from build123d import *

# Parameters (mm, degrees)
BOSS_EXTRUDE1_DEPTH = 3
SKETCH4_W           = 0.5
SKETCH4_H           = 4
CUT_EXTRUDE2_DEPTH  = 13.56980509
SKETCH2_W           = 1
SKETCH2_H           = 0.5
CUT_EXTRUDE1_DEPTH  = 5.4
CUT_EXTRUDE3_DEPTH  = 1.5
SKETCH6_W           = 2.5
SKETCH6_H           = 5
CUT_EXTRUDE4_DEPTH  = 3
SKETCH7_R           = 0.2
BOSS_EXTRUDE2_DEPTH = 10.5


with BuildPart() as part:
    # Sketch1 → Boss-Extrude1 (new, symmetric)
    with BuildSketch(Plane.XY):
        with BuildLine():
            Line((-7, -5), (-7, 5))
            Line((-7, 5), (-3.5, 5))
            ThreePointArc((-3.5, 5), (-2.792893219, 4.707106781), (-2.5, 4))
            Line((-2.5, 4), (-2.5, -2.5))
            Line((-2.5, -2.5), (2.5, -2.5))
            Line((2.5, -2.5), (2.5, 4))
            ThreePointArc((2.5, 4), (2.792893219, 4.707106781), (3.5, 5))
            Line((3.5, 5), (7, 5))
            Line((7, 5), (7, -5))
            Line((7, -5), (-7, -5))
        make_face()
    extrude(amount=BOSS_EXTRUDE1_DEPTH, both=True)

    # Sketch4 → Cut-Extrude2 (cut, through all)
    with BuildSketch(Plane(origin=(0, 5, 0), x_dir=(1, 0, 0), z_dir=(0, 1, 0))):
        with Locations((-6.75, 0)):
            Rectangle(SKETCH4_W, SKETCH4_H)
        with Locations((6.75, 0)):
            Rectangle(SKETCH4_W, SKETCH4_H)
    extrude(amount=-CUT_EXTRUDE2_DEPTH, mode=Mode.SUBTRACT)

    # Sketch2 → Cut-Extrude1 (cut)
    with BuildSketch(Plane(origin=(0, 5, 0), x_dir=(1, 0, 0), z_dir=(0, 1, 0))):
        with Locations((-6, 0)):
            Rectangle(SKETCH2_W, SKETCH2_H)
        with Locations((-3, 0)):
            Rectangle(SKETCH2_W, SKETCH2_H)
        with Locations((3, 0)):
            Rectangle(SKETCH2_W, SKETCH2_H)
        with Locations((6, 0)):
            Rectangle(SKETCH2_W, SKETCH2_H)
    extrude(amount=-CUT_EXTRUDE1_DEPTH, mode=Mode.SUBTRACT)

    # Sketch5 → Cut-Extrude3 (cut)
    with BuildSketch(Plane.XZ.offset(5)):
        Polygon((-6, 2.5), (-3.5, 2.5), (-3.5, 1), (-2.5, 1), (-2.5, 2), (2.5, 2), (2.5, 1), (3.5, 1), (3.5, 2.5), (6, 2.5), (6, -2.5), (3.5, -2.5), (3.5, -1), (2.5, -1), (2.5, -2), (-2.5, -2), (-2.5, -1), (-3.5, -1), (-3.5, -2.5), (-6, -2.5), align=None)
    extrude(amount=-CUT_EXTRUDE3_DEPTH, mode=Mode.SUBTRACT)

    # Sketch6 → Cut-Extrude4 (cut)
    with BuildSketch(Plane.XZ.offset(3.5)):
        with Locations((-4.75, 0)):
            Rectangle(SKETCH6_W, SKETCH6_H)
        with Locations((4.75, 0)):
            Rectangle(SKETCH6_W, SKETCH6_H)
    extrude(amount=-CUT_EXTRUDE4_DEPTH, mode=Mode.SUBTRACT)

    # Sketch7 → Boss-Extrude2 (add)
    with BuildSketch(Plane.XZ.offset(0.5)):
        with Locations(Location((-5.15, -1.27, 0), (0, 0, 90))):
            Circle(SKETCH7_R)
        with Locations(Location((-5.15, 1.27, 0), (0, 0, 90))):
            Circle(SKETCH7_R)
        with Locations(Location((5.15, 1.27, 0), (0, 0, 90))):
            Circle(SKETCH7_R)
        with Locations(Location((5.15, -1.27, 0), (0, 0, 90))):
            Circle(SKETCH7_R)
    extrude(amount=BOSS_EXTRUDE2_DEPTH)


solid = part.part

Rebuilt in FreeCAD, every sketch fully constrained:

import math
import FreeCAD as App
import Part
import Sketcher
from FreeCAD import Vector
Q = App.Units.Quantity


def add_polygon(sketch, points):
    """Adds a closed chain of lines whose ends are joined by coincident constraints."""
    first, n = sketch.GeometryCount, len(points)
    for a, b in zip(points, points[1:] + points[:1]):
        sketch.addGeometry(Part.LineSegment(App.Vector(*a, 0), App.Vector(*b, 0)), False)
    for i in range(n):
        sketch.addConstraint(Sketcher.Constraint("Coincident", first + i, 2, first + (i + 1) % n, 1))

doc = App.newDocument("Part")
body = doc.addObject("PartDesign::Body", "Body")

# Sketch on XY plane
sketch1 = body.newObject("Sketcher::SketchObject", "Sketch")
sketch1.AttachmentSupport = (doc.getObject("XY_Plane"), [""])
sketch1.MapMode = "FlatFace"
sketch1.addGeometry([
    Part.LineSegment(Vector(-7, 5, 0), Vector(-7, -5, 0)),  # 0
    Part.LineSegment(Vector(-7, -5, 0), Vector(7, -5, 0)),  # 1
    Part.LineSegment(Vector(7, -5, 0), Vector(7, 5, 0)),  # 2
    Part.LineSegment(Vector(7, 5, 0), Vector(3.5, 5, 0)),  # 3
    Part.ArcOfCircle(Part.Circle(Vector(3.5, 4, 0), Vector(0, 0, 1), 1), math.radians(90), math.radians(180)),  # 4
    Part.LineSegment(Vector(2.5, 4, 0), Vector(2.5, -2.5, 0)),  # 5
    Part.LineSegment(Vector(2.5, -2.5, 0), Vector(-2.5, -2.5, 0)),  # 6
    Part.LineSegment(Vector(-2.5, -2.5, 0), Vector(-2.5, 4, 0)),  # 7
    Part.ArcOfCircle(Part.Circle(Vector(-3.5, 4, 0), Vector(0, 0, 1), 1), math.radians(0), math.radians(90)),  # 8
    Part.LineSegment(Vector(-3.5, 5, 0), Vector(-7, 5, 0)),  # 9
], False)
sketch1.addConstraint([
    Sketcher.Constraint("Coincident", 0, 2, 1, 1),
    Sketcher.Constraint("Coincident", 1, 2, 2, 1),
    Sketcher.Constraint("Coincident", 2, 2, 3, 1),
    Sketcher.Constraint("Tangent", 3, 2, 4, 1),
    Sketcher.Constraint("Tangent", 4, 2, 5, 1),
    Sketcher.Constraint("Coincident", 5, 2, 6, 1),
    Sketcher.Constraint("Coincident", 6, 2, 7, 1),
    Sketcher.Constraint("Tangent", 7, 2, 8, 1),
    Sketcher.Constraint("Tangent", 8, 2, 9, 1),
    Sketcher.Constraint("Coincident", 9, 2, 0, 1),
    Sketcher.Constraint("Vertical", 0),
    Sketcher.Constraint("Horizontal", 1),
    Sketcher.Constraint("Vertical", 2),
    Sketcher.Constraint("Horizontal", 3),
    Sketcher.Constraint("Vertical", 5),
    Sketcher.Constraint("Horizontal", 6),
    Sketcher.Constraint("Vertical", 7),
    Sketcher.Constraint("Horizontal", 9),
    Sketcher.Constraint("Equal", 4, 8),
    Sketcher.Constraint("Symmetric", 0, 2, 2, 2, -1, 1),
    Sketcher.Constraint("Symmetric", 4, 3, 8, 3, -2),
    Sketcher.Constraint("Radius", 4, Q("1 mm")),
    Sketcher.Constraint("DistanceX", 1, 1, 1, 2, Q("14 mm")),
    Sketcher.Constraint("DistanceX", 6, 2, 6, 1, Q("5 mm")),
    Sketcher.Constraint("DistanceY", 0, 2, 0, 1, Q("10 mm")),
    Sketcher.Constraint("DistanceY", 5, 2, 5, 1, Q("6.5 mm")),
])
pad1 = body.newObject("PartDesign::Pad", "Pad")
pad1.Profile = sketch1
pad1.Length = 6
pad1.Midplane = True

# Sketch on XZ plane
sketch2 = body.newObject("Sketcher::SketchObject", "Sketch001")
sketch2.AttachmentSupport = (doc.getObject("XZ_Plane"), [""])
sketch2.MapMode = "FlatFace"
sketch2.AttachmentOffset = App.Placement(Vector(0, 0, -5), App.Rotation())
add_polygon(sketch2, [(-7, -2), (-7, 2), (-6.5, 2), (-6.5, -2)])  # lines 0-3
add_polygon(sketch2, [(6.5, -2), (6.5, 2), (7, 2), (7, -2)])  # lines 4-7
sketch2.addConstraint([
    Sketcher.Constraint("Vertical", 0),
    Sketcher.Constraint("Horizontal", 1),
    Sketcher.Constraint("Vertical", 2),
    Sketcher.Constraint("Horizontal", 3),
    Sketcher.Constraint("Vertical", 4),
    Sketcher.Constraint("Horizontal", 5),
    Sketcher.Constraint("Vertical", 6),
    Sketcher.Constraint("Horizontal", 7),
    Sketcher.Constraint("Symmetric", 2, 2, 4, 2, -1, 1),
    Sketcher.Constraint("Symmetric", 0, 2, 6, 2, -1, 1),
    Sketcher.Constraint("Horizontal", 1, 2, 4, 2),
    Sketcher.Constraint("DistanceY", 0, 1, 0, 2, Q("4 mm")),
    Sketcher.Constraint("DistanceX", 1, 1, 1, 2, Q("0.5 mm")),
    Sketcher.Constraint("DistanceX", 0, 2, -1, 1, Q("7 mm")),
])
pocket1 = body.newObject("PartDesign::Pocket", "Pocket")
pocket1.Profile = sketch2
pocket1.Type = "ThroughAll"
pocket1.Reversed = True

# Sketch on XZ plane
sketch3 = body.newObject("Sketcher::SketchObject", "Sketch002")
sketch3.AttachmentSupport = (doc.getObject("XZ_Plane"), [""])
sketch3.MapMode = "FlatFace"
sketch3.AttachmentOffset = App.Placement(Vector(0, 0, -5), App.Rotation())
add_polygon(sketch3, [(-6.5, -0.25), (-6.5, 0.25), (-5.5, 0.25), (-5.5, -0.25)])  # lines 0-3
add_polygon(sketch3, [(-3.5, -0.25), (-3.5, 0.25), (-2.5, 0.25), (-2.5, -0.25)])  # lines 4-7
add_polygon(sketch3, [(2.5, -0.25), (2.5, 0.25), (3.5, 0.25), (3.5, -0.25)])  # lines 8-11
add_polygon(sketch3, [(5.5, -0.25), (5.5, 0.25), (6.5, 0.25), (6.5, -0.25)])  # lines 12-15
sketch3.addConstraint([
    Sketcher.Constraint("Vertical", 0),
    Sketcher.Constraint("Horizontal", 1),
    Sketcher.Constraint("Vertical", 2),
    Sketcher.Constraint("Horizontal", 3),
    Sketcher.Constraint("Vertical", 4),
    Sketcher.Constraint("Horizontal", 5),
    Sketcher.Constraint("Vertical", 6),
    Sketcher.Constraint("Horizontal", 7),
    Sketcher.Constraint("Vertical", 8),
    Sketcher.Constraint("Horizontal", 9),
    Sketcher.Constraint("Vertical", 10),
    Sketcher.Constraint("Horizontal", 11),
    Sketcher.Constraint("Vertical", 12),
    Sketcher.Constraint("Horizontal", 13),
    Sketcher.Constraint("Vertical", 14),
    Sketcher.Constraint("Horizontal", 15),
    Sketcher.Constraint("Symmetric", 6, 2, 8, 2, -1, 1),
    Sketcher.Constraint("Symmetric", 4, 2, 10, 2, -1, 1),
    Sketcher.Constraint("Symmetric", 2, 2, 12, 2, -1, 1),
    Sketcher.Constraint("Symmetric", 0, 2, 14, 2, -1, 1),
    Sketcher.Constraint("Horizontal", 1, 2, 4, 2),
    Sketcher.Constraint("Horizontal", 3, 2, 6, 2),
    Sketcher.Constraint("Horizontal", 5, 2, 8, 2),
    Sketcher.Constraint("Equal", 3, 5),
    Sketcher.Constraint("DistanceX", 1, 1, 1, 2, Q("1 mm")),
    Sketcher.Constraint("DistanceY", 0, 1, 0, 2, Q("0.5 mm")),
    Sketcher.Constraint("DistanceX", 1, 2, 4, 2, Q("2 mm")),
    Sketcher.Constraint("DistanceX", 5, 2, 8, 2, Q("5 mm")),
])
pocket2 = body.newObject("PartDesign::Pocket", "Pocket001")
pocket2.Profile = sketch3
pocket2.Length = 5.4
pocket2.Reversed = True

# Sketch on XZ plane
sketch4 = body.newObject("Sketcher::SketchObject", "Sketch003")
sketch4.AttachmentSupport = (doc.getObject("XZ_Plane"), [""])
sketch4.MapMode = "FlatFace"
sketch4.AttachmentOffset = App.Placement(Vector(0, 0, 5), App.Rotation())
add_polygon(sketch4, [(-3.5, 2.5), (-6, 2.5), (-6, -2.5), (-3.5, -2.5), (-3.5, -1), (-2.5, -1), (-2.5, -2), (2.5, -2), (2.5, -1), (3.5, -1), (3.5, -2.5), (6, -2.5), (6, 2.5), (3.5, 2.5), (3.5, 1), (2.5, 1), (2.5, 2), (-2.5, 2), (-2.5, 1), (-3.5, 1)])  # lines 0-19
sketch4.addConstraint([
    Sketcher.Constraint("Horizontal", 0),
    Sketcher.Constraint("Vertical", 1),
    Sketcher.Constraint("Horizontal", 2),
    Sketcher.Constraint("Vertical", 3),
    Sketcher.Constraint("Horizontal", 4),
    Sketcher.Constraint("Vertical", 5),
    Sketcher.Constraint("Horizontal", 6),
    Sketcher.Constraint("Vertical", 7),
    Sketcher.Constraint("Horizontal", 8),
    Sketcher.Constraint("Vertical", 9),
    Sketcher.Constraint("Horizontal", 10),
    Sketcher.Constraint("Vertical", 11),
    Sketcher.Constraint("Horizontal", 12),
    Sketcher.Constraint("Vertical", 13),
    Sketcher.Constraint("Horizontal", 14),
    Sketcher.Constraint("Vertical", 15),
    Sketcher.Constraint("Horizontal", 16),
    Sketcher.Constraint("Vertical", 17),
    Sketcher.Constraint("Horizontal", 18),
    Sketcher.Constraint("Vertical", 19),
    Sketcher.Constraint("Symmetric", 0, 2, 10, 2, -1, 1),
    Sketcher.Constraint("Symmetric", 2, 2, 12, 2, -1, 1),
    Sketcher.Constraint("Symmetric", 4, 2, 14, 2, -1, 1),
    Sketcher.Constraint("Symmetric", 6, 2, 16, 2, -1, 1),
    Sketcher.Constraint("Symmetric", 8, 2, 18, 2, -1, 1),
    Sketcher.Constraint("Symmetric", 4, 2, 7, 2, -2),
    Sketcher.Constraint("Symmetric", 2, 2, 9, 2, -2),
    Sketcher.Constraint("Equal", 16, 1),
    Sketcher.Constraint("Equal", 18, 5),
    Sketcher.Constraint("DistanceX", 4, 1, 4, 2, Q("1 mm")),
    Sketcher.Constraint("DistanceX", 6, 1, 6, 2, Q("5 mm")),
    Sketcher.Constraint("DistanceX", 0, 2, 0, 1, Q("2.5 mm")),
    Sketcher.Constraint("DistanceY", 3, 1, 3, 2, Q("1.5 mm")),
])
pocket3 = body.newObject("PartDesign::Pocket", "Pocket002")
pocket3.Profile = sketch4
pocket3.Length = 1.5

# Sketch on XZ plane
sketch5 = body.newObject("Sketcher::SketchObject", "Sketch004")
sketch5.AttachmentSupport = (doc.getObject("XZ_Plane"), [""])
sketch5.MapMode = "FlatFace"
sketch5.AttachmentOffset = App.Placement(Vector(0, 0, 3.5), App.Rotation())
add_polygon(sketch5, [(-6, 2.5), (-6, -2.5), (-3.5, -2.5), (-3.5, 2.5)])  # lines 0-3
add_polygon(sketch5, [(3.5, 2.5), (3.5, -2.5), (6, -2.5), (6, 2.5)])  # lines 4-7
sketch5.addConstraint([
    Sketcher.Constraint("Vertical", 0),
    Sketcher.Constraint("Horizontal", 1),
    Sketcher.Constraint("Vertical", 2),
    Sketcher.Constraint("Horizontal", 3),
    Sketcher.Constraint("Vertical", 4),
    Sketcher.Constraint("Horizontal", 5),
    Sketcher.Constraint("Vertical", 6),
    Sketcher.Constraint("Horizontal", 7),
    Sketcher.Constraint("Symmetric", 2, 2, 4, 2, -1, 1),
    Sketcher.Constraint("Symmetric", 0, 2, 6, 2, -1, 1),
    Sketcher.Constraint("Horizontal", 1, 2, 4, 2),
    Sketcher.Constraint("DistanceY", 0, 2, 0, 1, Q("5 mm")),
    Sketcher.Constraint("DistanceX", 1, 1, 1, 2, Q("2.5 mm")),
    Sketcher.Constraint("DistanceX", 0, 2, -1, 1, Q("6 mm")),
])
pocket4 = body.newObject("PartDesign::Pocket", "Pocket003")
pocket4.Profile = sketch5
pocket4.Length = 3

# Sketch on XZ plane
sketch6 = body.newObject("Sketcher::SketchObject", "Sketch005")
sketch6.AttachmentSupport = (doc.getObject("XZ_Plane"), [""])
sketch6.MapMode = "FlatFace"
sketch6.AttachmentOffset = App.Placement(Vector(0, 0, 0.5), App.Rotation())
sketch6.addGeometry([
    Part.Circle(Vector(-5.15, -1.27, 0), Vector(0, 0, 1), 0.2),
    Part.Circle(Vector(-5.15, 1.27, 0), Vector(0, 0, 1), 0.2),
    Part.Circle(Vector(5.15, 1.27, 0), Vector(0, 0, 1), 0.2),
    Part.Circle(Vector(5.15, -1.27, 0), Vector(0, 0, 1), 0.2),
], False)
sketch6.addConstraint([
    Sketcher.Constraint("Equal", 0, 1),
    Sketcher.Constraint("Equal", 1, 2),
    Sketcher.Constraint("Equal", 2, 3),
    Sketcher.Constraint("Symmetric", 0, 3, 2, 3, -1, 1),
    Sketcher.Constraint("Symmetric", 1, 3, 3, 3, -1, 1),
    Sketcher.Constraint("Symmetric", 1, 3, 2, 3, -2),
    Sketcher.Constraint("Diameter", 0, Q("0.4 mm")),
    Sketcher.Constraint("DistanceX", 1, 3, 2, 3, Q("10.3 mm")),
    Sketcher.Constraint("DistanceY", 0, 3, -1, 1, Q("1.27 mm")),
])
pad2 = body.newObject("PartDesign::Pad", "Pad001")
pad2.Profile = sketch6
pad2.Length = 10.5

doc.recompute()
